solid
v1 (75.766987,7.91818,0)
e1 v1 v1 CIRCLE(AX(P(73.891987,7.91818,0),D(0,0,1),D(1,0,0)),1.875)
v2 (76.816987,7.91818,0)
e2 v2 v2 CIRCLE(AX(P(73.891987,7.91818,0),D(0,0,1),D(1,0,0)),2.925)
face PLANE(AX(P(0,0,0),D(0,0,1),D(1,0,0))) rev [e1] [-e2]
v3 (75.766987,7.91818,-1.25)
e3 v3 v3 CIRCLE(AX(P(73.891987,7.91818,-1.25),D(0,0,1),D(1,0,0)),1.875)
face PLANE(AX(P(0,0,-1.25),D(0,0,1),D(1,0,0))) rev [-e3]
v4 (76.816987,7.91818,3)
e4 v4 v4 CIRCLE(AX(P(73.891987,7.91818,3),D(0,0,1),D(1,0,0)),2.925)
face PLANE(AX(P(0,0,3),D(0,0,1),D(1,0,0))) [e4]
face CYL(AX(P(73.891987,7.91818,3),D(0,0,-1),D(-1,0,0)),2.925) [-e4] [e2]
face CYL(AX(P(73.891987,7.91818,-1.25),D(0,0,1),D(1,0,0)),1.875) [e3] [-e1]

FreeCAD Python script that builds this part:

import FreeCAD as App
import Part
import Sketcher
from FreeCAD import Vector

doc = App.newDocument("Part")
body = doc.addObject("PartDesign::Body", "Body")

sketch1 = doc.addObject("Sketcher::SketchObject", "Sketch")
body.addObject(sketch1)
sketch1.AttachmentSupport = (doc.XY_Plane, [""])
sketch1.MapMode = "FlatFace"
sketch1.addGeometry(Part.Circle(Vector(73.9, 7.9, 0), Vector(0, 0, 1), 2.9), False)
sketch1.addConstraint([
    Sketcher.Constraint("Diameter", 0, 5.85),
    Sketcher.Constraint("DistanceY", -1, 1, 0, 3, 7.91818),
    Sketcher.Constraint("DistanceX", -1, 1, 0, 3, 73.891987),
])
pad1 = doc.addObject("PartDesign::Pad", "Pad")
body.addObject(pad1)
pad1.Profile = sketch1
pad1.Length = 3

sketch2 = doc.addObject("Sketcher::SketchObject", "Sketch001")
body.addObject(sketch2)
sketch2.AttachmentSupport = (doc.XY_Plane, [""])
sketch2.MapMode = "FlatFace"
sketch2.addGeometry(Part.Circle(Vector(73.9, 7.9, 0), Vector(0, 0, 1), 1.9), False)
sketch2.addConstraint([
    Sketcher.Constraint("Diameter", 0, 3.75),
    Sketcher.Constraint("DistanceY", -1, 1, 0, 3, 7.91818),
    Sketcher.Constraint("DistanceX", -1, 1, 0, 3, 73.891987),
])
pad2 = doc.addObject("PartDesign::Pad", "Pad001")
body.addObject(pad2)
pad2.Profile = sketch2
pad2.Length = 1.25
pad2.Reversed = True

doc.recompute()
